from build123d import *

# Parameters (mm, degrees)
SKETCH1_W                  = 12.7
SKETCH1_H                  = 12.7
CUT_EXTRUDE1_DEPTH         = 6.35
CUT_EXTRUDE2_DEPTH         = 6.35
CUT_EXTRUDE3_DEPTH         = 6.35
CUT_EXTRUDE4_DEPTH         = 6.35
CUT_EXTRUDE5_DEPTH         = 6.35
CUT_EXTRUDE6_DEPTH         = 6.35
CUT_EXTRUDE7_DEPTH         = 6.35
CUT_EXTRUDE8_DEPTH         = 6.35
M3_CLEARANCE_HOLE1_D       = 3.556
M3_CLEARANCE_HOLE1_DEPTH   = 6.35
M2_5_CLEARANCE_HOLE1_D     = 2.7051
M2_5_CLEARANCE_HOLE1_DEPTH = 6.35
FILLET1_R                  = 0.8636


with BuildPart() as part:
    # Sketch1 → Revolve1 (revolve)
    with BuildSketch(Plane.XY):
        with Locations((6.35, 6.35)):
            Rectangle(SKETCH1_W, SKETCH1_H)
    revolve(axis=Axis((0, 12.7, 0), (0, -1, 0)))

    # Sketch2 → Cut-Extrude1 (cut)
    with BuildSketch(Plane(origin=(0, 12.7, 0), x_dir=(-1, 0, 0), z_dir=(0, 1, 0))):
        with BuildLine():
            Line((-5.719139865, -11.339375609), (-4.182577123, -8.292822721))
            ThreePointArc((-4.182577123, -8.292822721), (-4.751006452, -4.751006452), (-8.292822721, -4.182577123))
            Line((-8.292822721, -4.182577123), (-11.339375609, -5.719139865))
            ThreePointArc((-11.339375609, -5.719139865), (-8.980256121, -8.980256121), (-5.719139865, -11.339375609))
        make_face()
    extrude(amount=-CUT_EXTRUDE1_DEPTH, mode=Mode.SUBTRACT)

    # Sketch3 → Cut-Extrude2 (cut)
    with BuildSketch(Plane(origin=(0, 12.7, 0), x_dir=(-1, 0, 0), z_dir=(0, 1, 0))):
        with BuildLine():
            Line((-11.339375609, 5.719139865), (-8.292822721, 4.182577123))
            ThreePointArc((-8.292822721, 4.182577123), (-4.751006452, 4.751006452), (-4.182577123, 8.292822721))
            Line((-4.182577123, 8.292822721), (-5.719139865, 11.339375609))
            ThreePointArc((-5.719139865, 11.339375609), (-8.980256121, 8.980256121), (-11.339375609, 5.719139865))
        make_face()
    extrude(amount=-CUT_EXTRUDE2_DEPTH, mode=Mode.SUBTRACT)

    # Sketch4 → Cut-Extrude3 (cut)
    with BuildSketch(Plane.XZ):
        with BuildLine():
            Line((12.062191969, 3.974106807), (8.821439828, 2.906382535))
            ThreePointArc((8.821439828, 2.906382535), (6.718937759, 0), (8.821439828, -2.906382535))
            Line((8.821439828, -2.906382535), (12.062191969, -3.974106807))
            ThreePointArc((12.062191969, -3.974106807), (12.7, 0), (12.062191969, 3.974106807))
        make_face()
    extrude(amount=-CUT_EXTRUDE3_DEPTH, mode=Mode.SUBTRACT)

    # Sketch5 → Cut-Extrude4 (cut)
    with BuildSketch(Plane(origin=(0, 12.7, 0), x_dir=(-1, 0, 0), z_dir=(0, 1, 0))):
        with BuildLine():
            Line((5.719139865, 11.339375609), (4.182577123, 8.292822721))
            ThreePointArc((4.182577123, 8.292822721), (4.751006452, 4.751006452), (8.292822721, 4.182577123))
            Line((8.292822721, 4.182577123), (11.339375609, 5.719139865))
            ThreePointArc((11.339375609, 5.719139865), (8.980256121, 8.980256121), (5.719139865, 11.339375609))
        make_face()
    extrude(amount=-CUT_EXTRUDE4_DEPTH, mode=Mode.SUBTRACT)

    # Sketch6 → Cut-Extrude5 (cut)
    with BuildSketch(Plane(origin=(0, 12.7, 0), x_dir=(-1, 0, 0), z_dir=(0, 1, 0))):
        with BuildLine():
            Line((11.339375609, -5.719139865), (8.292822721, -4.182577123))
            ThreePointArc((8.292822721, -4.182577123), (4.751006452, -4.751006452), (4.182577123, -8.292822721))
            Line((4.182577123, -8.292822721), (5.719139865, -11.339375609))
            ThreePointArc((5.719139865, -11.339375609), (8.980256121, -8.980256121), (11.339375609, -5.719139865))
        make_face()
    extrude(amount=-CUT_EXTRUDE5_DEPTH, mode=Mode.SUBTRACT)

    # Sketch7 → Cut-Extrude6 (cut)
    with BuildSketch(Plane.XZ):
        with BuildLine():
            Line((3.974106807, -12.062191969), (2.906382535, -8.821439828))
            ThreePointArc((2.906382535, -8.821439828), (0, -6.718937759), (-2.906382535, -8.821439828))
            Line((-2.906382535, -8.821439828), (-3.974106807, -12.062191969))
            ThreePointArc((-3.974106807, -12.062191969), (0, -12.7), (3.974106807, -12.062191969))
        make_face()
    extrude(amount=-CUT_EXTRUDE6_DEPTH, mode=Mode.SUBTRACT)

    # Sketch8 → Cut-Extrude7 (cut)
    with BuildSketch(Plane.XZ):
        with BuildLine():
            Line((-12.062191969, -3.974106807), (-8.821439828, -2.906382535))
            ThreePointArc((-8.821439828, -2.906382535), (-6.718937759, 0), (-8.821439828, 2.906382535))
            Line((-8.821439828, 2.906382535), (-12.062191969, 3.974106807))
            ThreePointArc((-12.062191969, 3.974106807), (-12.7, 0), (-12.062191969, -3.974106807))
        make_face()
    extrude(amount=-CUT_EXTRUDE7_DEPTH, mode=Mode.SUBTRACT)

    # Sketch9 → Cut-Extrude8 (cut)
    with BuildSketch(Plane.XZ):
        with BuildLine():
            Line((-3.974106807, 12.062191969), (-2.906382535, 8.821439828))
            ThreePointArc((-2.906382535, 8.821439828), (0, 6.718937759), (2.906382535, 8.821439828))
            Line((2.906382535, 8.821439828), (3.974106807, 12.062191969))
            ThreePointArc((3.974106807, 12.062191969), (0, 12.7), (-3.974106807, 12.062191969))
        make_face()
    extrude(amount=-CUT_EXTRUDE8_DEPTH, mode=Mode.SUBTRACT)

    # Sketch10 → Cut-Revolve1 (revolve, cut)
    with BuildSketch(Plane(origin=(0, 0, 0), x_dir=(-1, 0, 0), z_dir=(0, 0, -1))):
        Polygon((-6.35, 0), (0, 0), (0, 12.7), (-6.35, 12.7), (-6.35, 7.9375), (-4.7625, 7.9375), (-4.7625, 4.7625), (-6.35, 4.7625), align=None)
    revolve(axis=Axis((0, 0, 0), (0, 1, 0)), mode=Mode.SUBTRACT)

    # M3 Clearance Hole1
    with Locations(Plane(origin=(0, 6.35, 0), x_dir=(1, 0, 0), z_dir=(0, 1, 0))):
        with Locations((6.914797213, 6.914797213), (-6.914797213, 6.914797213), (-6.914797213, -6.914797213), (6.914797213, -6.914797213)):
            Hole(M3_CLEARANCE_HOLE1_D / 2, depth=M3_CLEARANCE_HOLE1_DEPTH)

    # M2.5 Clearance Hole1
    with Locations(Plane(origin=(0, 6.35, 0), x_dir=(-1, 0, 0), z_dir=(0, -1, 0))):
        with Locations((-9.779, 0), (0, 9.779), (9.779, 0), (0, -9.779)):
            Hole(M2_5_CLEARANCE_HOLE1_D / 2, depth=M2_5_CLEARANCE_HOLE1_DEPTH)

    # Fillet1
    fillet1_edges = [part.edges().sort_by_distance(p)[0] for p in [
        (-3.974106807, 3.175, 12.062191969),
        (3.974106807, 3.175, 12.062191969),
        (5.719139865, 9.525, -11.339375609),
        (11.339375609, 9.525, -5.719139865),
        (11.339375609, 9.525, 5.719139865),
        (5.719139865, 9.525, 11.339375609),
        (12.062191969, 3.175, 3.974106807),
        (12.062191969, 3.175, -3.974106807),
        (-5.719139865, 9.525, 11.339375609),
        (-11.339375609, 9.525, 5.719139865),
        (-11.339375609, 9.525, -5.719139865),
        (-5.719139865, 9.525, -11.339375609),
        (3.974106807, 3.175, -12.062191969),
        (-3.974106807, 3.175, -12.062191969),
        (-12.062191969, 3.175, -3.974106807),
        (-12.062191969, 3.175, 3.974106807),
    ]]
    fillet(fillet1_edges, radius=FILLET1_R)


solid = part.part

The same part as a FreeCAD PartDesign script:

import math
import FreeCAD as App
import Part
import Sketcher
from FreeCAD import Vector
Q = App.Units.Quantity


def edges_at(feature, points):
    """Names of the edges that pass closest to the given points."""
    edges = feature.Shape.Edges
    near = lambda p: min(range(len(edges)), key=lambda i: edges[i].distToShape(Part.Vertex(*p))[0])
    return sorted({f"Edge{near(p) + 1}" for p in points})

doc = App.newDocument("Part")
body = doc.addObject("PartDesign::Body", "Body")

sketch1 = body.newObject("Sketcher::SketchObject", "Sketch")
sketch1.AttachmentSupport = (doc.getObject("XY_Plane"), [""])
sketch1.MapMode = "FlatFace"
sketch1.addGeometry([
    Part.LineSegment(Vector(0, 13, 0), Vector(0, 0, 0)),
    Part.LineSegment(Vector(0, 0, 0), Vector(13, 0, 0)),
    Part.LineSegment(Vector(13, 0, 0), Vector(13, 13, 0)),
    Part.LineSegment(Vector(13, 13, 0), Vector(0, 13, 0)),
], False)
sketch1.addConstraint([
    Sketcher.Constraint("Coincident", 0, 2, 1, 1),
    Sketcher.Constraint("Coincident", 1, 2, 2, 1),
    Sketcher.Constraint("Coincident", 2, 2, 3, 1),
    Sketcher.Constraint("Coincident", 3, 2, 0, 1),
    Sketcher.Constraint("Vertical", 0),
    Sketcher.Constraint("Horizontal", 1),
    Sketcher.Constraint("Vertical", 2),
    Sketcher.Constraint("Horizontal", 3),
    Sketcher.Constraint("Coincident", 0, 2, -1, 1),
    Sketcher.Constraint("Equal", 3, 0),
    Sketcher.Constraint("DistanceX", 1, 1, 1, 2, Q("0.5 in")),
])
revolution = body.newObject("PartDesign::Revolution", "Revolution")
revolution.Profile = sketch1
revolution.ReferenceAxis = (sketch1, ["V_Axis"])
revolution.Angle = 360

sketch2 = body.newObject("Sketcher::SketchObject", "Sketch001")
sketch2.AttachmentSupport = (doc.getObject("XZ_Plane"), [""])
sketch2.MapMode = "FlatFace"
sketch2.AttachmentOffset = App.Placement(Vector(0, 0, -0.5 * 25.4), App.Rotation())
sketch2.addGeometry([
    Part.LineSegment(Vector(5.7, -11.3, 0), Vector(4.2, -8.3, 0)),
    Part.ArcOfCircle(Part.Circle(Vector(6.9, -6.9, 0), Vector(0, 0, 1), 3.1), math.radians(63), math.radians(207)),
    Part.LineSegment(Vector(8.3, -4.2, 0), Vector(11.3, -5.7, 0)),
    Part.ArcOfCircle(Part.Circle(Vector(0, 0, 0), Vector(0, 0, 1), 12.7), math.radians(-63), math.radians(-27)),
], False)
sketch2.addConstraint([
    Sketcher.Constraint("Tangent", 0, 2, 1, 2),
    Sketcher.Constraint("Tangent", 1, 1, 2, 1),
    Sketcher.Constraint("Coincident", 2, 2, 3, 2),
    Sketcher.Constraint("Coincident", 3, 1, 0, 1),
    Sketcher.Constraint("Coincident", 3, 3, -1, 1),
    Sketcher.Constraint("Equal", 0, 2),
    Sketcher.Constraint("Radius", 3, Q("0.5 in")),
    Sketcher.Constraint("Radius", 1, Q("3.060062 mm")),
    Sketcher.Constraint("DistanceX", 0, 2, 2, 2, Q("7.156798 mm")),
    Sketcher.Constraint("DistanceY", 3, 1, 1, 1, Q("7.156798 mm")),
    Sketcher.Constraint("DistanceY", 2, 2, -1, 1, Q("5.71914 mm")),
])
pocket1 = body.newObject("PartDesign::Pocket", "Pocket")
pocket1.Profile = sketch2
pocket1.Length = Q("0.25 in")
pocket1.Reversed = True

sketch3 = body.newObject("Sketcher::SketchObject", "Sketch002")
sketch3.AttachmentSupport = (doc.getObject("XZ_Plane"), [""])
sketch3.MapMode = "FlatFace"
sketch3.AttachmentOffset = App.Placement(Vector(0, 0, -0.5 * 25.4), App.Rotation())
sketch3.addGeometry([
    Part.LineSegment(Vector(11.3, 5.7, 0), Vector(8.3, 4.2, 0)),
    Part.ArcOfCircle(Part.Circle(Vector(6.9, 6.9, 0), Vector(0, 0, 1), 3.1), math.radians(153), math.radians(297)),
    Part.LineSegment(Vector(4.2, 8.3, 0), Vector(5.7, 11.3, 0)),
    Part.ArcOfCircle(Part.Circle(Vector(0, 0, 0), Vector(0, 0, 1), 12.7), math.radians(27), math.radians(63)),
], False)
sketch3.addConstraint([
    Sketcher.Constraint("Tangent", 0, 2, 1, 2),
    Sketcher.Constraint("Tangent", 1, 1, 2, 1),
    Sketcher.Constraint("Coincident", 2, 2, 3, 2),
    Sketcher.Constraint("Coincident", 3, 1, 0, 1),
    Sketcher.Constraint("Coincident", 3, 3, -1, 1),
    Sketcher.Constraint("Equal", 0, 2),
    Sketcher.Constraint("Radius", 3, Q("0.5 in")),
    Sketcher.Constraint("Radius", 1, Q("3.060062 mm")),
    Sketcher.Constraint("DistanceY", 0, 2, 2, 2, Q("7.156798 mm")),
    Sketcher.Constraint("DistanceX", 1, 1, 3, 1, Q("7.156798 mm")),
    Sketcher.Constraint("DistanceX", -1, 1, 2, 2, Q("5.71914 mm")),
])
pocket2 = body.newObject("PartDesign::Pocket", "Pocket001")
pocket2.Profile = sketch3
pocket2.Length = Q("0.25 in")
pocket2.Reversed = True

sketch4 = body.newObject("Sketcher::SketchObject", "Sketch003")
sketch4.AttachmentSupport = (doc.getObject("XZ_Plane"), [""])
sketch4.MapMode = "FlatFace"
sketch4.addGeometry([
    Part.LineSegment(Vector(12.1, 4, 0), Vector(8.8, 2.9, 0)),
    Part.ArcOfCircle(Part.Circle(Vector(9.8, 0, 0), Vector(0, 0, 1), 3.1), math.radians(108), math.radians(252)),
    Part.LineSegment(Vector(8.8, -2.9, 0), Vector(12.1, -4, 0)),
    Part.ArcOfCircle(Part.Circle(Vector(0, 0, 0), Vector(0, 0, 1), 12.7), math.radians(-18), math.radians(18)),
], False)
sketch4.addConstraint([
    Sketcher.Constraint("Tangent", 0, 2, 1, 1),
    Sketcher.Constraint("Tangent", 1, 2, 2, 1),
    Sketcher.Constraint("Coincident", 2, 2, 3, 1),
    Sketcher.Constraint("Coincident", 3, 2, 0, 1),
    Sketcher.Constraint("Coincident", 3, 3, -1, 1),
    Sketcher.Constraint("Symmetric", 0, 2, 1, 2, -1),
    Sketcher.Constraint("Radius", 3, Q("0.5 in")),
    Sketcher.Constraint("DistanceX", -1, 1, 1, 3, Q("0.385 in")),
    Sketcher.Constraint("Radius", 1, Q("3.060062 mm")),
    Sketcher.Constraint("DistanceX", -1, 1, 0, 2, Q("8.82144 mm")),
])
pocket3 = body.newObject("PartDesign::Pocket", "Pocket002")
pocket3.Profile = sketch4
pocket3.Length = Q("0.25 in")

sketch5 = body.newObject("Sketcher::SketchObject", "Sketch004")
sketch5.AttachmentSupport = (doc.getObject("XZ_Plane"), [""])
sketch5.MapMode = "FlatFace"
sketch5.AttachmentOffset = App.Placement(Vector(0, 0, -0.5 * 25.4), App.Rotation())
sketch5.addGeometry([
    Part.LineSegment(Vector(-5.7, 11.3, 0), Vector(-4.2, 8.3, 0)),
    Part.ArcOfCircle(Part.Circle(Vector(-6.9, 6.9, 0), Vector(0, 0, 1), 3.1), math.radians(-117), math.radians(27)),
    Part.LineSegment(Vector(-8.3, 4.2, 0), Vector(-11.3, 5.7, 0)),
    Part.ArcOfCircle(Part.Circle(Vector(0, 0, 0), Vector(0, 0, 1), 12.7), math.radians(117), math.radians(153)),
], False)
sketch5.addConstraint([
    Sketcher.Constraint("Tangent", 0, 2, 1, 2),
    Sketcher.Constraint("Tangent", 1, 1, 2, 1),
    Sketcher.Constraint("Coincident", 2, 2, 3, 2),
    Sketcher.Constraint("Coincident", 3, 1, 0, 1),
    Sketcher.Constraint("Coincident", 3, 3, -1, 1),
    Sketcher.Constraint("Equal", 0, 2),
    Sketcher.Constraint("Radius", 3, Q("0.5 in")),
    Sketcher.Constraint("Radius", 1, Q("3.060062 mm")),
    Sketcher.Constraint("DistanceX", 2, 2, 0, 2, Q("7.156798 mm")),
    Sketcher.Constraint("DistanceY", 1, 1, 3, 1, Q("7.156798 mm")),
    Sketcher.Constraint("DistanceY", -1, 1, 2, 2, Q("5.71914 mm")),
])
pocket4 = body.newObject("PartDesign::Pocket", "Pocket003")
pocket4.Profile = sketch5
pocket4.Length = Q("0.25 in")
pocket4.Reversed = True

sketch6 = body.newObject("Sketcher::SketchObject", "Sketch005")
sketch6.AttachmentSupport = (doc.getObject("XZ_Plane"), [""])
sketch6.MapMode = "FlatFace"
sketch6.AttachmentOffset = App.Placement(Vector(0, 0, -0.5 * 25.4), App.Rotation())
sketch6.addGeometry([
    Part.LineSegment(Vector(-11.3, -5.7, 0), Vector(-8.3, -4.2, 0)),
    Part.ArcOfCircle(Part.Circle(Vector(-6.9, -6.9, 0), Vector(0, 0, 1), 3.1), math.radians(-27), math.radians(117)),
    Part.LineSegment(Vector(-4.2, -8.3, 0), Vector(-5.7, -11.3, 0)),
    Part.ArcOfCircle(Part.Circle(Vector(0, 0, 0), Vector(0, 0, 1), 12.7), math.radians(-153), math.radians(-117)),
], False)
sketch6.addConstraint([
    Sketcher.Constraint("Tangent", 0, 2, 1, 2),
    Sketcher.Constraint("Tangent", 1, 1, 2, 1),
    Sketcher.Constraint("Coincident", 2, 2, 3, 2),
    Sketcher.Constraint("Coincident", 3, 1, 0, 1),
    Sketcher.Constraint("Coincident", 3, 3, -1, 1),
    Sketcher.Constraint("Equal", 0, 2),
    Sketcher.Constraint("Radius", 3, Q("0.5 in")),
    Sketcher.Constraint("Radius", 1, Q("3.060062 mm")),
    Sketcher.Constraint("DistanceY", 2, 2, 0, 2, Q("7.156798 mm")),
    Sketcher.Constraint("DistanceX", 3, 1, 1, 1, Q("7.156798 mm")),
    Sketcher.Constraint("DistanceX", 2, 2, -1, 1, Q("5.71914 mm")),
])
pocket5 = body.newObject("PartDesign::Pocket", "Pocket004")
pocket5.Profile = sketch6
pocket5.Length = Q("0.25 in")
pocket5.Reversed = True

sketch7 = body.newObject("Sketcher::SketchObject", "Sketch006")
sketch7.AttachmentSupport = (doc.getObject("XZ_Plane"), [""])
sketch7.MapMode = "FlatFace"
sketch7.addGeometry([
    Part.LineSegment(Vector(4, -12.1, 0), Vector(2.9, -8.8, 0)),
    Part.ArcOfCircle(Part.Circle(Vector(0, -9.8, 0), Vector(0, 0, 1), 3.1), math.radians(18), math.radians(162)),
    Part.LineSegment(Vector(-2.9, -8.8, 0), Vector(-4, -12.1, 0)),
    Part.ArcOfCircle(Part.Circle(Vector(0, 0, 0), Vector(0, 0, 1), 12.7), math.radians(-108), math.radians(-72)),
], False)
sketch7.addConstraint([
    Sketcher.Constraint("Tangent", 0, 2, 1, 1),
    Sketcher.Constraint("Tangent", 1, 2, 2, 1),
    Sketcher.Constraint("Coincident", 2, 2, 3, 1),
    Sketcher.Constraint("Coincident", 3, 2, 0, 1),
    Sketcher.Constraint("Coincident", 3, 3, -1, 1),
    Sketcher.Constraint("Symmetric", 0, 2, 1, 2, -2),
    Sketcher.Constraint("Radius", 3, Q("0.5 in")),
    Sketcher.Constraint("DistanceY", 1, 3, -1, 1, Q("0.385 in")),
    Sketcher.Constraint("Radius", 1, Q("3.060062 mm")),
    Sketcher.Constraint("DistanceY", 0, 2, -1, 1, Q("8.82144 mm")),
])
pocket6 = body.newObject("PartDesign::Pocket", "Pocket005")
pocket6.Profile = sketch7
pocket6.Length = Q("0.25 in")

sketch8 = body.newObject("Sketcher::SketchObject", "Sketch007")
sketch8.AttachmentSupport = (doc.getObject("XZ_Plane"), [""])
sketch8.MapMode = "FlatFace"
sketch8.addGeometry([
    Part.LineSegment(Vector(-12.1, -4, 0), Vector(-8.8, -2.9, 0)),
    Part.ArcOfCircle(Part.Circle(Vector(-9.8, 0, 0), Vector(0, 0, 1), 3.1), math.radians(-72), math.radians(72)),
    Part.LineSegment(Vector(-8.8, 2.9, 0), Vector(-12.1, 4, 0)),
    Part.ArcOfCircle(Part.Circle(Vector(0, 0, 0), Vector(0, 0, 1), 12.7), math.radians(162), math.radians(198)),
], False)
sketch8.addConstraint([
    Sketcher.Constraint("Tangent", 0, 2, 1, 1),
    Sketcher.Constraint("Tangent", 1, 2, 2, 1),
    Sketcher.Constraint("Coincident", 2, 2, 3, 1),
    Sketcher.Constraint("Coincident", 3, 2, 0, 1),
    Sketcher.Constraint("Coincident", 3, 3, -1, 1),
    Sketcher.Constraint("Symmetric", 0, 2, 1, 2, -1),
    Sketcher.Constraint("Radius", 3, Q("0.5 in")),
    Sketcher.Constraint("DistanceX", 1, 3, -1, 1, Q("0.385 in")),
    Sketcher.Constraint("Radius", 1, Q("3.060062 mm")),
    Sketcher.Constraint("DistanceX", 0, 2, -1, 1, Q("8.82144 mm")),
])
pocket7 = body.newObject("PartDesign::Pocket", "Pocket006")
pocket7.Profile = sketch8
pocket7.Length = Q("0.25 in")

sketch9 = body.newObject("Sketcher::SketchObject", "Sketch008")
sketch9.AttachmentSupport = (doc.getObject("XZ_Plane"), [""])
sketch9.MapMode = "FlatFace"
sketch9.addGeometry([
    Part.LineSegment(Vector(-4, 12.1, 0), Vector(-2.9, 8.8, 0)),
    Part.ArcOfCircle(Part.Circle(Vector(0, 9.8, 0), Vector(0, 0, 1), 3.1), math.radians(-162), math.radians(-18)),
    Part.LineSegment(Vector(2.9, 8.8, 0), Vector(4, 12.1, 0)),
    Part.ArcOfCircle(Part.Circle(Vector(0, 0, 0), Vector(0, 0, 1), 12.7), math.radians(72), math.radians(108)),
], False)
sketch9.addConstraint([
    Sketcher.Constraint("Tangent", 0, 2, 1, 1),
    Sketcher.Constraint("Tangent", 1, 2, 2, 1),
    Sketcher.Constraint("Coincident", 2, 2, 3, 1),
    Sketcher.Constraint("Coincident", 3, 2, 0, 1),
    Sketcher.Constraint("Coincident", 3, 3, -1, 1),
    Sketcher.Constraint("Symmetric", 0, 2, 1, 2, -2),
    Sketcher.Constraint("Radius", 3, Q("0.5 in")),
    Sketcher.Constraint("DistanceY", -1, 1, 1, 3, Q("0.385 in")),
    Sketcher.Constraint("Radius", 1, Q("3.060062 mm")),
    Sketcher.Constraint("DistanceY", -1, 1, 0, 2, Q("8.82144 mm")),
])
pocket8 = body.newObject("PartDesign::Pocket", "Pocket007")
pocket8.Profile = sketch9
pocket8.Length = Q("0.25 in")

sketch10 = body.newObject("Sketcher::SketchObject", "Sketch009")
sketch10.AttachmentSupport = (doc.getObject("XY_Plane"), [""])
sketch10.MapMode = "FlatFace"
sketch10.addGeometry([
    Part.LineSegment(Vector(6.3, 0, 0), Vector(0, 0, 0)),
    Part.LineSegment(Vector(0, 0, 0), Vector(0, 12.7, 0)),
    Part.LineSegment(Vector(0, 12.7, 0), Vector(6.3, 12.7, 0)),
    Part.LineSegment(Vector(6.3, 12.7, 0), Vector(6.3, 7.9, 0)),
    Part.LineSegment(Vector(6.3, 7.9, 0), Vector(4.8, 7.9, 0)),
    Part.LineSegment(Vector(4.8, 7.9, 0), Vector(4.8, 4.8, 0)),
    Part.LineSegment(Vector(4.8, 4.8, 0), Vector(6.3, 4.8, 0)),
    Part.LineSegment(Vector(6.3, 4.8, 0), Vector(6.3, 0, 0)),
], False)
sketch10.addConstraint([
    Sketcher.Constraint("Coincident", 0, 2, 1, 1),
    Sketcher.Constraint("Coincident", 1, 2, 2, 1),
    Sketcher.Constraint("Coincident", 2, 2, 3, 1),
    Sketcher.Constraint("Coincident", 3, 2, 4, 1),
    Sketcher.Constraint("Coincident", 4, 2, 5, 1),
    Sketcher.Constraint("Coincident", 5, 2, 6, 1),
    Sketcher.Constraint("Coincident", 6, 2, 7, 1),
    Sketcher.Constraint("Coincident", 7, 2, 0, 1),
    Sketcher.Constraint("Horizontal", 0),
    Sketcher.Constraint("Vertical", 1),
    Sketcher.Constraint("Horizontal", 2),
    Sketcher.Constraint("Vertical", 3),
    Sketcher.Constraint("Horizontal", 4),
    Sketcher.Constraint("Vertical", 5),
    Sketcher.Constraint("Horizontal", 6),
    Sketcher.Constraint("Vertical", 7),
    Sketcher.Constraint("Coincident", 0, 2, -1, 1),
    Sketcher.Constraint("Vertical", 3, 2, 6, 2),
    Sketcher.Constraint("Equal", 3, 7),
    Sketcher.Constraint("DistanceY", 1, 1, 1, 2, Q("0.5 in")),
    Sketcher.Constraint("DistanceX", 0, 2, 0, 1, Q("0.25 in")),
    Sketcher.Constraint("DistanceX", 4, 2, 4, 1, Q("0.0625 in")),
    Sketcher.Constraint("DistanceY", 3, 2, 3, 1, Q("0.1875 in")),
])
groove = body.newObject("PartDesign::Groove", "Groove")
groove.Profile = sketch10
groove.ReferenceAxis = (sketch10, ["V_Axis"])
groove.Angle = 360

sketch11 = body.newObject("Sketcher::SketchObject", "Sketch010")
sketch11.AttachmentSupport = (doc.getObject("XZ_Plane"), [""])
sketch11.MapMode = "FlatFace"
sketch11.AttachmentOffset = App.Placement(Vector(0, 0, -0.25 * 25.4), App.Rotation())
sketch11.addGeometry([
    Part.Circle(Vector(6.9, -6.9, 0), Vector(0, 0, 1), 1.8),
    Part.Circle(Vector(-6.9, -6.9, 0), Vector(0, 0, 1), 1.8),
    Part.Circle(Vector(-6.9, 6.9, 0), Vector(0, 0, 1), 1.8),
    Part.Circle(Vector(6.9, 6.9, 0), Vector(0, 0, 1), 1.8),
], False)
sketch11.addConstraint([
    Sketcher.Constraint("Equal", 0, 1),
    Sketcher.Constraint("Equal", 1, 2),
    Sketcher.Constraint("Equal", 2, 3),
    Sketcher.Constraint("Symmetric", 0, 3, 2, 3, -1, 1),
    Sketcher.Constraint("Symmetric", 1, 3, 3, 3, -1, 1),
    Sketcher.Constraint("Symmetric", 0, 3, 1, 3, -2),
    Sketcher.Constraint("Diameter", 0, Q("0.14 in")),
    Sketcher.Constraint("DistanceX", -1, 1, 0, 3, Q("6.914797 mm")),
    Sketcher.Constraint("DistanceY", 0, 3, -1, 1, Q("6.914797 mm")),
])
doc.recompute()
hole = body.newObject("PartDesign::Hole", "Hole")
hole.Profile = sketch11
hole.ThreadType = "None"
hole.Diameter = Q("0.14 in")
hole.DepthType = "Dimension"
hole.Depth = Q("0.25 in")
hole.DrillPoint = "Flat"
hole.Reversed = True

sketch12 = body.newObject("Sketcher::SketchObject", "Sketch011")
sketch12.AttachmentSupport = (doc.getObject("XZ_Plane"), [""])
sketch12.MapMode = "FlatFace"
sketch12.AttachmentOffset = App.Placement(Vector(0, 0, -0.25 * 25.4), App.Rotation())
sketch12.addGeometry([
    Part.Circle(Vector(9.8, 0, 0), Vector(0, 0, 1), 1.4),
    Part.Circle(Vector(0, -9.8, 0), Vector(0, 0, 1), 1.4),
    Part.Circle(Vector(-9.8, 0, 0), Vector(0, 0, 1), 1.4),
    Part.Circle(Vector(0, 9.8, 0), Vector(0, 0, 1), 1.4),
], False)
sketch12.addConstraint([
    Sketcher.Constraint("Equal", 0, 1),
    Sketcher.Constraint("Equal", 1, 2),
    Sketcher.Constraint("Equal", 2, 3),
    Sketcher.Constraint("Symmetric", 0, 3, 2, 3, -1, 1),
    Sketcher.Constraint("Symmetric", 1, 3, 3, 3, -1, 1),
    Sketcher.Constraint("PointOnObject", 0, 3, -1),
    Sketcher.Constraint("PointOnObject", 1, 3, -2),
    Sketcher.Constraint("Diameter", 0, Q("0.1065 in")),
    Sketcher.Constraint("DistanceX", 2, 3, 0, 3, Q("0.77 in")),
    Sketcher.Constraint("DistanceY", 1, 3, 3, 3, Q("0.77 in")),
])
doc.recompute()
hole2 = body.newObject("PartDesign::Hole", "Hole001")
hole2.Profile = sketch12
hole2.ThreadType = "None"
hole2.Diameter = Q("0.1065 in")
hole2.DepthType = "Dimension"
hole2.Depth = Q("0.25 in")
hole2.DrillPoint = "Flat"
doc.recompute()

fillet = body.newObject("PartDesign::Fillet", "Fillet")
fillet.Base = (hole2, edges_at(hole2, [
    (-3.974, 3.175, 12.062),
    (3.974, 3.175, 12.062),
    (5.719, 9.525, -11.339),
    (11.339, 9.525, -5.719),
    (11.339, 9.525, 5.719),
    (5.719, 9.525, 11.339),
    (12.062, 3.175, 3.974),
    (12.062, 3.175, -3.974),
    (-5.719, 9.525, 11.339),
    (-11.339, 9.525, 5.719),
    (-11.339, 9.525, -5.719),
    (-5.719, 9.525, -11.339),
    (3.974, 3.175, -12.062),
    (-3.974, 3.175, -12.062),
    (-12.062, 3.175, -3.974),
    (-12.062, 3.175, 3.974),
]))
fillet.Radius = Q("0.034 in")

doc.recompute()
